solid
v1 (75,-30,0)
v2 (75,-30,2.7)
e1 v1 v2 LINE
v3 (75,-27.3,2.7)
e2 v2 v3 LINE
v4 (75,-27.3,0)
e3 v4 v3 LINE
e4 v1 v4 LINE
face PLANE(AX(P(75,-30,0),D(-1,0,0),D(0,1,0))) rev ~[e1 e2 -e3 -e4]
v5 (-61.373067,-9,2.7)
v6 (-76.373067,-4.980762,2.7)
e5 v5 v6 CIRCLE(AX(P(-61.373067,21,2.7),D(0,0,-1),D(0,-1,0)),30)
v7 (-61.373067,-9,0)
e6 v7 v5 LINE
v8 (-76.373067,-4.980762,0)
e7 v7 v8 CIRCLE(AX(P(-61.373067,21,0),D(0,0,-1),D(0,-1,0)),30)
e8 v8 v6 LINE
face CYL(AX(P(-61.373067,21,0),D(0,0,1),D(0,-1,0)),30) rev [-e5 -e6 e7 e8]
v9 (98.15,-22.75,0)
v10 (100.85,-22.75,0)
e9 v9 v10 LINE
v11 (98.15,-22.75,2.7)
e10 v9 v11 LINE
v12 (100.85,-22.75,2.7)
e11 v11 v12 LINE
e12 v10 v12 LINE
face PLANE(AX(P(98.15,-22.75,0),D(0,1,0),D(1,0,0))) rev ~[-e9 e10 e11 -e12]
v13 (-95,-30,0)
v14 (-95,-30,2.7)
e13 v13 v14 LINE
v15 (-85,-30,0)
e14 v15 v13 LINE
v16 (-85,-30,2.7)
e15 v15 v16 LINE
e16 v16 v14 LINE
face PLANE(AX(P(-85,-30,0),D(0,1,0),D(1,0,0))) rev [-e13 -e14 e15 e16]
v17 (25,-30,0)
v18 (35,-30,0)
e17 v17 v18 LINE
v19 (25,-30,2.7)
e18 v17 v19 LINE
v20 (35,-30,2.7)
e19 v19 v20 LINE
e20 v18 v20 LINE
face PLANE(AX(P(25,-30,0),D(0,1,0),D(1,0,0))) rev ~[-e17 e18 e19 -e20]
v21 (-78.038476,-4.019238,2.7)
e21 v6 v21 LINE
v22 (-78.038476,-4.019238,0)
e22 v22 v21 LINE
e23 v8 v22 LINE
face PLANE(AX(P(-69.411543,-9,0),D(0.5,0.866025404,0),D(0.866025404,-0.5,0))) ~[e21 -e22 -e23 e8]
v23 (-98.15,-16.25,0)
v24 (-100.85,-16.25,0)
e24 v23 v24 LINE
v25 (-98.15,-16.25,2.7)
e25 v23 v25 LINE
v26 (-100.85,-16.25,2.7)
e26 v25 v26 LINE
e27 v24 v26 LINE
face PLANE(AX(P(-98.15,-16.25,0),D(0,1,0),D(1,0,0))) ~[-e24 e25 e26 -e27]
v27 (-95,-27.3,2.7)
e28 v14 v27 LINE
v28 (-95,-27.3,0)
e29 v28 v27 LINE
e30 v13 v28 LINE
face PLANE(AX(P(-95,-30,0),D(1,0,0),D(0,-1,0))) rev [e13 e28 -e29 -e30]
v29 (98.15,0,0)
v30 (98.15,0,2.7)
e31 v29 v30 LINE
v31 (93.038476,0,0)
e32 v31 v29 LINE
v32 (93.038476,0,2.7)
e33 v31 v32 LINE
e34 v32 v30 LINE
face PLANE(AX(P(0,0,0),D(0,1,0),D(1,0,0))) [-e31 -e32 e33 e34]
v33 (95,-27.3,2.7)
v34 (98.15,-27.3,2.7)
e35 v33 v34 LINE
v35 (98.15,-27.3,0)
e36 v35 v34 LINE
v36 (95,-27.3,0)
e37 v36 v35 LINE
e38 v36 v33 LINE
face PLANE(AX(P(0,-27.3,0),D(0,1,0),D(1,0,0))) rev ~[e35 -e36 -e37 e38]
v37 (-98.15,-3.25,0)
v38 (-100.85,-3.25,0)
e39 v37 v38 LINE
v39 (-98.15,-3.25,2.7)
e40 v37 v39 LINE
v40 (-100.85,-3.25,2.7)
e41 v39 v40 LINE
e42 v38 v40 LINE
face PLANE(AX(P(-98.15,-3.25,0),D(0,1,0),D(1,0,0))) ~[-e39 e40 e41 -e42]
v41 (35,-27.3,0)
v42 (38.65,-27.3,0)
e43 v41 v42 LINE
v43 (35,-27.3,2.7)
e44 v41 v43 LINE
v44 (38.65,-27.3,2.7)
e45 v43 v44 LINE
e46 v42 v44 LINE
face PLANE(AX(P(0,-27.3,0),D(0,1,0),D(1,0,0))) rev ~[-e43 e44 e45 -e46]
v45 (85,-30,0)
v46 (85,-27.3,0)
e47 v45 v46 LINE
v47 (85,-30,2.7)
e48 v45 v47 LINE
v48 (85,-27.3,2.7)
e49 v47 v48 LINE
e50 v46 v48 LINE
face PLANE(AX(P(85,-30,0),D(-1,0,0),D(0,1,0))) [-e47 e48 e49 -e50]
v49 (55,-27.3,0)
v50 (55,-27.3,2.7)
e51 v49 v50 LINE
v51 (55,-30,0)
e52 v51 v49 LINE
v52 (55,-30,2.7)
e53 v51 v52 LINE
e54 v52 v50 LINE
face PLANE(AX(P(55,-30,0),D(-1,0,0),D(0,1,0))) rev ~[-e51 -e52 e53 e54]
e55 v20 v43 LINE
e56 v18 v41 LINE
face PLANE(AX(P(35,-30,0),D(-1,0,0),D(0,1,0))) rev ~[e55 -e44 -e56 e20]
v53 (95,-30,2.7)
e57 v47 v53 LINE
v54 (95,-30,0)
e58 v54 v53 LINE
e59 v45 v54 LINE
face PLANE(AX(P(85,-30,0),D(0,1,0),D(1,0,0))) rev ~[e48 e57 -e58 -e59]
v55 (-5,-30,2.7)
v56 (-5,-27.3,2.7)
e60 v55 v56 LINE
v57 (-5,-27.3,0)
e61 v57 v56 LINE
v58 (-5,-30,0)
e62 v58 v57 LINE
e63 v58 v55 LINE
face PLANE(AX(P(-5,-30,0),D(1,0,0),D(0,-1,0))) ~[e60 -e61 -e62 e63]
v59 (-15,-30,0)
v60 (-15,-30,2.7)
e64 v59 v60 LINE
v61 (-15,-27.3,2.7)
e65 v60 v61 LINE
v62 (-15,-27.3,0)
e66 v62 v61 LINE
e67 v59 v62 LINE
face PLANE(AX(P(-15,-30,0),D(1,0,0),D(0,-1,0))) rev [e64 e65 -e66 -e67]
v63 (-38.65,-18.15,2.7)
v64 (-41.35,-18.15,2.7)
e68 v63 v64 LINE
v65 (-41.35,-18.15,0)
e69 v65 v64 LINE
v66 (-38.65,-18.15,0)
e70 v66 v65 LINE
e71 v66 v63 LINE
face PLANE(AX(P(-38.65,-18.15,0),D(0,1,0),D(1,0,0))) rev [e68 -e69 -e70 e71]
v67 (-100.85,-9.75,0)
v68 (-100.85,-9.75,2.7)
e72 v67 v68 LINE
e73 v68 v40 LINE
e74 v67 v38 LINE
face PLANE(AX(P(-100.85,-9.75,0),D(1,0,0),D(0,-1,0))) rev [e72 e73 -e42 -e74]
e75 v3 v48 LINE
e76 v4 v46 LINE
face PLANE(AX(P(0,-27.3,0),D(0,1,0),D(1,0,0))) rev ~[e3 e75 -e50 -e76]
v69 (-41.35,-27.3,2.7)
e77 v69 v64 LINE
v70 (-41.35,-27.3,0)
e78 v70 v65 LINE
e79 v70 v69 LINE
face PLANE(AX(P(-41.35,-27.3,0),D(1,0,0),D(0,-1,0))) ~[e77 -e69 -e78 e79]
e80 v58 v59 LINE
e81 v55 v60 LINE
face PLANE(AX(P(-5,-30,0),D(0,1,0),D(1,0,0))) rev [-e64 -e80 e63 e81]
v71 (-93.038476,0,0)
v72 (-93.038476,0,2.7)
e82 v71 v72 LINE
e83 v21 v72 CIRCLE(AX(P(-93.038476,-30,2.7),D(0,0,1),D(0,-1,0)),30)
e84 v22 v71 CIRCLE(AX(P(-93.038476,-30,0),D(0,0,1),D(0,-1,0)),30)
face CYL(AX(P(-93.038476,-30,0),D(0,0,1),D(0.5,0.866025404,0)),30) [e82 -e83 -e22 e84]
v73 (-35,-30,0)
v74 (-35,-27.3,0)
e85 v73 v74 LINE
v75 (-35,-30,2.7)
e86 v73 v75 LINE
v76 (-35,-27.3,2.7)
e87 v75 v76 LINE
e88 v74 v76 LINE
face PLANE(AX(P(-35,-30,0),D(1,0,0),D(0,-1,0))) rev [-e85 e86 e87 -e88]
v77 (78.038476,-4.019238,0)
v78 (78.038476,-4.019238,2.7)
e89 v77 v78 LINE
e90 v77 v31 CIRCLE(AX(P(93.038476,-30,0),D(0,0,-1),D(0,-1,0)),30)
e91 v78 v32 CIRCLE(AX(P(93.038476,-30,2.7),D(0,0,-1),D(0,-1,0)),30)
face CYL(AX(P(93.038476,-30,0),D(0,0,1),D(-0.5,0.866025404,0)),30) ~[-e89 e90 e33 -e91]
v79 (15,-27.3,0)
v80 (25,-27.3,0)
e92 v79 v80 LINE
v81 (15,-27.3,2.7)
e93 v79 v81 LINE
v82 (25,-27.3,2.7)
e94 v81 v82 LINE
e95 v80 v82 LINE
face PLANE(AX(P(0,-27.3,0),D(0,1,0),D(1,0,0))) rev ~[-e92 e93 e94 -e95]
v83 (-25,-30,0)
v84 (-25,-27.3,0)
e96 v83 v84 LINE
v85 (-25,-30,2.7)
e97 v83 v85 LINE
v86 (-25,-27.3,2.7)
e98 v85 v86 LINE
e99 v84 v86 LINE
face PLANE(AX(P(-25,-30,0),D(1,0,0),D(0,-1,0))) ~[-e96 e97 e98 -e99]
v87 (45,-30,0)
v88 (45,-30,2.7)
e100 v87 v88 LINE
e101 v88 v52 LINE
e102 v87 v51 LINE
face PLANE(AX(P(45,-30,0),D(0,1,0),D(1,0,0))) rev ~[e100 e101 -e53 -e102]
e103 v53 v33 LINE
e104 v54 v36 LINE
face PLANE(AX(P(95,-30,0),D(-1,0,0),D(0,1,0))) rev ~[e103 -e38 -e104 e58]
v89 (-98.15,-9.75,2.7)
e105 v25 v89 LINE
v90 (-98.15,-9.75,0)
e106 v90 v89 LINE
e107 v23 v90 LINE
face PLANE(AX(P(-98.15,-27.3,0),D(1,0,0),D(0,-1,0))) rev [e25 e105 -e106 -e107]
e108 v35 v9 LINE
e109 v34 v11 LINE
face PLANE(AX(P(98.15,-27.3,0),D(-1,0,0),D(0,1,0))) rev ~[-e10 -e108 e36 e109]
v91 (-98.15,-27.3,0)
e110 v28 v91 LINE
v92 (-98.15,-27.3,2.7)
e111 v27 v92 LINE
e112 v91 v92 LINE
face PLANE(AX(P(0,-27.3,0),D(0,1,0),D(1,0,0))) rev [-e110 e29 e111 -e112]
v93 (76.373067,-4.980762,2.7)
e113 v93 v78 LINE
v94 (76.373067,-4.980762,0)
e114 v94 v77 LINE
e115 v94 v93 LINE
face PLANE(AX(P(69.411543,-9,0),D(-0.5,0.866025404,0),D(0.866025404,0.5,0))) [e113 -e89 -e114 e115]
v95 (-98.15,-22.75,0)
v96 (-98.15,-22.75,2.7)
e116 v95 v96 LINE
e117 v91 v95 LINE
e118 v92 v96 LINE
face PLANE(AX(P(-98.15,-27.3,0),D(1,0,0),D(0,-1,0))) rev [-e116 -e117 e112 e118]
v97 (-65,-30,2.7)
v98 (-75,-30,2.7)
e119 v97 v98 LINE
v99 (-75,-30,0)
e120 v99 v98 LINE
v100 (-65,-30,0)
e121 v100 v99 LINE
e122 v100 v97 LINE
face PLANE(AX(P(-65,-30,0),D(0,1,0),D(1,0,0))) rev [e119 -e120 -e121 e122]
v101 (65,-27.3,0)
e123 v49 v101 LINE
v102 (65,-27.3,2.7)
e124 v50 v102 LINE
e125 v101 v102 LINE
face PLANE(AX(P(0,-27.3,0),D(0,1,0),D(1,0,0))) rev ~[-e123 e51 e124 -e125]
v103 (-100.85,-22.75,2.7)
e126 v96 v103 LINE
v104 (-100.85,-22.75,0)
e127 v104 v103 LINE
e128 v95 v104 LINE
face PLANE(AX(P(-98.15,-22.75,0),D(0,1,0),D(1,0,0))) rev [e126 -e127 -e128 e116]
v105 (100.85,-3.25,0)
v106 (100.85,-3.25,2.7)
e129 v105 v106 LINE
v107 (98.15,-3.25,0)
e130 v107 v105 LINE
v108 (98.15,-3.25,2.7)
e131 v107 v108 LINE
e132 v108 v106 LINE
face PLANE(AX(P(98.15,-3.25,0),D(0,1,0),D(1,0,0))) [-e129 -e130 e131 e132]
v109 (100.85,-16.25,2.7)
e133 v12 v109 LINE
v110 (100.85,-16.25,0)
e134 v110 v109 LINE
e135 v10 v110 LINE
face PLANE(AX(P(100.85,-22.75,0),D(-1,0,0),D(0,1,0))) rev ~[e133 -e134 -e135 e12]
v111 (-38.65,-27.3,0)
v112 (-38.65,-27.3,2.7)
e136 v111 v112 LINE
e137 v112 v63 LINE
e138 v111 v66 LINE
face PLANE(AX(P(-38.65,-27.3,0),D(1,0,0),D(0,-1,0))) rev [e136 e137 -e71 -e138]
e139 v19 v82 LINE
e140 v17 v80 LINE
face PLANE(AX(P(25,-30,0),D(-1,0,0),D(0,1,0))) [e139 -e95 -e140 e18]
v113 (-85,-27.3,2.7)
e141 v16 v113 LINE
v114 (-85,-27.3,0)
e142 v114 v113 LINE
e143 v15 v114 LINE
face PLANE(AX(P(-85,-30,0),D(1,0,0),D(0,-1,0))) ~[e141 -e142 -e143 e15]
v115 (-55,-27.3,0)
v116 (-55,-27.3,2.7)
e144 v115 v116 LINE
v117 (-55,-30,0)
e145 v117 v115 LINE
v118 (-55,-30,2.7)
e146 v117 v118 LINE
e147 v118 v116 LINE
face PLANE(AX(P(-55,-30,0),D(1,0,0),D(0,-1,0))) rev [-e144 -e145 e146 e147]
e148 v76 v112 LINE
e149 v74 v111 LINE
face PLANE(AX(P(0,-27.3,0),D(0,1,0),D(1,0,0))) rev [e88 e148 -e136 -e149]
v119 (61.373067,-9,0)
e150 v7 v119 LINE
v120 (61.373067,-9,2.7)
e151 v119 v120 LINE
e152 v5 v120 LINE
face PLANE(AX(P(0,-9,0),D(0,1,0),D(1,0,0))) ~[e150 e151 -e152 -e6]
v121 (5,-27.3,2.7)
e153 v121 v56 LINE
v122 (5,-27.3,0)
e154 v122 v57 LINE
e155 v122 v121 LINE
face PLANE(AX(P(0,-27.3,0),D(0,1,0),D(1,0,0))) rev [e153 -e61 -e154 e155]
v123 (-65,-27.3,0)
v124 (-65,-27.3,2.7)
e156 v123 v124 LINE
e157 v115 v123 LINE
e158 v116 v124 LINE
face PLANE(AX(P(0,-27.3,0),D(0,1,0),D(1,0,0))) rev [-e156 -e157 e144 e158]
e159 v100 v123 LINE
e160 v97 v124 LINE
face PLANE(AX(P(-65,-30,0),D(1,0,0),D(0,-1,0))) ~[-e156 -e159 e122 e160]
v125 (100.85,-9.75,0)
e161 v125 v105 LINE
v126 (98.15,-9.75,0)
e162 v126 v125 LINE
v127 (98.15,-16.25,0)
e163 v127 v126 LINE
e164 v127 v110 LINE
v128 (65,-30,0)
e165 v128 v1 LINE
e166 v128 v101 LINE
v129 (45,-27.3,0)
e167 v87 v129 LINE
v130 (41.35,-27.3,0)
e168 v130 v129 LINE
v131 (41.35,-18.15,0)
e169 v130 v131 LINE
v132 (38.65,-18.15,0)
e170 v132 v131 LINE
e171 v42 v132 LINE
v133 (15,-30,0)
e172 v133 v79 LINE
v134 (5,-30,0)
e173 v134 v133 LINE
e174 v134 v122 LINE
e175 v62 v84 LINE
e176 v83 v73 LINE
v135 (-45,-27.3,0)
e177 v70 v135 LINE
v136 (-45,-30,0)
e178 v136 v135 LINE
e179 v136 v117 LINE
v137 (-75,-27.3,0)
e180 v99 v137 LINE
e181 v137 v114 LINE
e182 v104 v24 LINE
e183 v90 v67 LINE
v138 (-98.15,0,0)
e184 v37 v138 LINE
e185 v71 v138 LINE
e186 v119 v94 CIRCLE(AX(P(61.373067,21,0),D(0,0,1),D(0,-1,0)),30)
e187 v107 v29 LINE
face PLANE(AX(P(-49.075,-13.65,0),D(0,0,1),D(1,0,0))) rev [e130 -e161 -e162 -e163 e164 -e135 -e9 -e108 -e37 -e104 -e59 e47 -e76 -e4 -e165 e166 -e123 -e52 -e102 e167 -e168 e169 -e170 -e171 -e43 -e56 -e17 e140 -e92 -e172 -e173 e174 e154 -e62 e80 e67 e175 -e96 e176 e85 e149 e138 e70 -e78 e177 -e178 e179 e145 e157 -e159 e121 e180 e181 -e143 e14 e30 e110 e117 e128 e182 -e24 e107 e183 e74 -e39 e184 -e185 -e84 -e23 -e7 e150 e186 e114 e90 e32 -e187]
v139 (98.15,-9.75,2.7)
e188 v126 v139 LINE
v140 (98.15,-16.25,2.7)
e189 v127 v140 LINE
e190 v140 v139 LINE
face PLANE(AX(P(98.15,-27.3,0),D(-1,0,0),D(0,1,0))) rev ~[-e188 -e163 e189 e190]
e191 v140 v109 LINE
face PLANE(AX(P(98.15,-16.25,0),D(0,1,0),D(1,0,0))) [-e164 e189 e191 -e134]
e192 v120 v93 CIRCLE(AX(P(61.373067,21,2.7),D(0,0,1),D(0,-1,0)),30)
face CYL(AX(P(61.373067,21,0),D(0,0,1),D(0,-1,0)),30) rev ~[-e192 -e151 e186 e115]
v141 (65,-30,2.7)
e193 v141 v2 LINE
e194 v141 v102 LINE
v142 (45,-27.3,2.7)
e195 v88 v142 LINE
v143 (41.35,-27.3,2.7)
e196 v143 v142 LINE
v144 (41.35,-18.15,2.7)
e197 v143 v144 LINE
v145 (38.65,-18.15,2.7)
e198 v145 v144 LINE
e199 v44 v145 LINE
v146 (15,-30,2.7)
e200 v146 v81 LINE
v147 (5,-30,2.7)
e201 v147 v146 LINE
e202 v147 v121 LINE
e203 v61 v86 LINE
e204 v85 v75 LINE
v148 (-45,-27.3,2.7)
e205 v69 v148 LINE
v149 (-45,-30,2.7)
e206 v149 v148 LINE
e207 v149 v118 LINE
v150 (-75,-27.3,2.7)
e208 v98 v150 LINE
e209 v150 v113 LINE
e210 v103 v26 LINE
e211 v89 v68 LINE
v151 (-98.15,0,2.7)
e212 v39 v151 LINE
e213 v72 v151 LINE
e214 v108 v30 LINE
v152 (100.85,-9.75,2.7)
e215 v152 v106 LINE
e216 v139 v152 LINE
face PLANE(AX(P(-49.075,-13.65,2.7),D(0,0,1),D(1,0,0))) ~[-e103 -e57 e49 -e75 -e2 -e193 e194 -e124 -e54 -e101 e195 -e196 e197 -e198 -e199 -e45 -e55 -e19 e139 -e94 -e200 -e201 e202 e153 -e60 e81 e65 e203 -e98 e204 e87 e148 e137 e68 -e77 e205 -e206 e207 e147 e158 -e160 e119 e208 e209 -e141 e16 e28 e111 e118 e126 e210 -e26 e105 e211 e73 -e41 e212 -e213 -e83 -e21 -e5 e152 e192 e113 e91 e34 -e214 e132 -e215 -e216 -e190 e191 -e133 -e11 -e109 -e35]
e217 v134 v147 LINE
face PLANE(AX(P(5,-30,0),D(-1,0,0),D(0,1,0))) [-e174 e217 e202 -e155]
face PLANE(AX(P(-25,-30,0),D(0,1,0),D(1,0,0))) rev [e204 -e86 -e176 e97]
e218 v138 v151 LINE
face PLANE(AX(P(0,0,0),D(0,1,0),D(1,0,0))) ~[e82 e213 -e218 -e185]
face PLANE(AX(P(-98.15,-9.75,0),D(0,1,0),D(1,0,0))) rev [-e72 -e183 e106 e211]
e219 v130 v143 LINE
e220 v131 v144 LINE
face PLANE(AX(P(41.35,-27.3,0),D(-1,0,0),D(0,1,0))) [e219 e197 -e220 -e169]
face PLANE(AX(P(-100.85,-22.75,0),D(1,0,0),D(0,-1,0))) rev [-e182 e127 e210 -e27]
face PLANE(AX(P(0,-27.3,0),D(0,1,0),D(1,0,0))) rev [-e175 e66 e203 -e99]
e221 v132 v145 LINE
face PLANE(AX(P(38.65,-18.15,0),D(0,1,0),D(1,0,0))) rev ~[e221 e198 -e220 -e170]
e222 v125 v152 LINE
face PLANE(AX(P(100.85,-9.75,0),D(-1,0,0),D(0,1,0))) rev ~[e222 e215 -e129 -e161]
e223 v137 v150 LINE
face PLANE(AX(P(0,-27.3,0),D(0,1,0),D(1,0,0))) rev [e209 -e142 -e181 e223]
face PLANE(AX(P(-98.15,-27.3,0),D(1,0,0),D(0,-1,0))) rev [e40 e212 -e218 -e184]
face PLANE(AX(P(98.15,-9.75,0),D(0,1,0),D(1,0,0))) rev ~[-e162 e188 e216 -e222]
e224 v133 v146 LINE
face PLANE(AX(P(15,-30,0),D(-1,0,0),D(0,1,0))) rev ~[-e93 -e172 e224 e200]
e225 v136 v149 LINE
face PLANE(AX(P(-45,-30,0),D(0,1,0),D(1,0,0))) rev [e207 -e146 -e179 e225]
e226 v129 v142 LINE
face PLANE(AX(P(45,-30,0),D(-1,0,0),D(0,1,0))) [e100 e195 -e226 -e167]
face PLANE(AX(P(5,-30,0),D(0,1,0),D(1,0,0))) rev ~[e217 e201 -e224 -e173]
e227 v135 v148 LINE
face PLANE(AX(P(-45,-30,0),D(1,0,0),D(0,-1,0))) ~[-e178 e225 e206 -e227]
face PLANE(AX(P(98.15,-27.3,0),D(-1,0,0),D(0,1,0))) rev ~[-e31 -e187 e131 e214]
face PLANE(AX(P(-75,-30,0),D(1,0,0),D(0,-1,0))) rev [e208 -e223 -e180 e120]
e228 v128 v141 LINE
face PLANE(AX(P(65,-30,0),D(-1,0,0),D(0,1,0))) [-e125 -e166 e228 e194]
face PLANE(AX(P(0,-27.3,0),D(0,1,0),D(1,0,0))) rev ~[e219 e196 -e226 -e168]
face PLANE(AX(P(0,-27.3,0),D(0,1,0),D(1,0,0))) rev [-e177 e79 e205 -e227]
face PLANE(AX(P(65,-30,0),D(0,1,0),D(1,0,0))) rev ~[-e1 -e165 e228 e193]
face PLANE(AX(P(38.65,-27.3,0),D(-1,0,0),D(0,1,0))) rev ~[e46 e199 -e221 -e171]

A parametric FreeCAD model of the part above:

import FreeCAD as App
import Part
import Sketcher
Q = App.Units.Quantity


def edges_at(feature, points):
    """Names of the edges that pass closest to the given points."""
    edges = feature.Shape.Edges
    near = lambda p: min(range(len(edges)), key=lambda i: edges[i].distToShape(Part.Vertex(*p))[0])
    return sorted({f"Edge{near(p) + 1}" for p in points})


def add_polygon(sketch, points):
    """Adds a closed chain of lines whose ends are joined by coincident constraints."""
    first, n = sketch.GeometryCount, len(points)
    for a, b in zip(points, points[1:] + points[:1]):
        sketch.addGeometry(Part.LineSegment(App.Vector(*a, 0), App.Vector(*b, 0)), False)
    for i in range(n):
        sketch.addConstraint(Sketcher.Constraint("Coincident", first + i, 2, first + (i + 1) % n, 1))

doc = App.newDocument("Part")
body = doc.addObject("PartDesign::Body", "Body")

# Sketch on XY plane
sketch1 = doc.addObject("Sketcher::SketchObject", "Sketch")
body.addObject(sketch1)
sketch1.AttachmentSupport = (doc.XY_Plane, [""])
sketch1.MapMode = "FlatFace"
add_polygon(sketch1, [(0, 0), (0, -27), (98, -27), (98, 0)])  # lines 0-3
sketch1.addConstraint([
    Sketcher.Constraint("Vertical", 0),
    Sketcher.Constraint("Horizontal", 1),
    Sketcher.Constraint("Vertical", 2),
    Sketcher.Constraint("Horizontal", 3),
    Sketcher.Constraint("Coincident", 3, 2, -1, 1),
    Sketcher.Constraint("DistanceY", 0, 2, 0, 1, Q("27.3 mm")),
    Sketcher.Constraint("DistanceX", 1, 1, 1, 2, Q("98.15 mm")),
])
pad1 = doc.addObject("PartDesign::Pad", "Pad")
body.addObject(pad1)
pad1.Profile = sketch1
pad1.Length = 2.7

# Sketch on XY plane
sketch2 = doc.addObject("Sketcher::SketchObject", "Sketch001")
body.addObject(sketch2)
sketch2.AttachmentSupport = (doc.XY_Plane, [""])
sketch2.MapMode = "FlatFace"
add_polygon(sketch2, [(5, -27.3), (5, -30), (15, -30), (15, -27.3)])  # lines 0-3
sketch2.addConstraint([
    Sketcher.Constraint("Vertical", 0),
    Sketcher.Constraint("Horizontal", 1),
    Sketcher.Constraint("Vertical", 2),
    Sketcher.Constraint("Horizontal", 3),
    Sketcher.Constraint("DistanceX", 1, 1, 1, 2, Q("10 mm")),
    Sketcher.Constraint("DistanceY", 0, 2, 0, 1, Q("2.7 mm")),
    Sketcher.Constraint("DistanceX", -1, 1, 0, 2, Q("5 mm")),
    Sketcher.Constraint("DistanceY", 0, 2, -1, 1, Q("30 mm")),
])
pad2 = doc.addObject("PartDesign::Pad", "Pad001")
body.addObject(pad2)
pad2.Profile = sketch2
pad2.Length = 2.7
doc.recompute()

linearpattern = doc.addObject("PartDesign::LinearPattern", "LinearPattern")
body.addObject(linearpattern)
linearpattern.Originals = [pad2]
linearpattern.Direction = (doc.X_Axis, [""])
linearpattern.Mode = "offset"
linearpattern.Offset = 20
linearpattern.Occurrences = 5
body.Tip = linearpattern

# Sketch on XY plane
sketch3 = doc.addObject("Sketcher::SketchObject", "Sketch002")
body.addObject(sketch3)
sketch3.AttachmentSupport = (doc.XY_Plane, [""])
sketch3.MapMode = "FlatFace"
add_polygon(sketch3, [(98.2, -3.2), (98.2, -9.8), (100.8, -9.8), (100.8, -3.2)])  # lines 0-3
sketch3.addConstraint([
    Sketcher.Constraint("Vertical", 0),
    Sketcher.Constraint("Horizontal", 1),
    Sketcher.Constraint("Vertical", 2),
    Sketcher.Constraint("Horizontal", 3),
    Sketcher.Constraint("DistanceX", 1, 1, 1, 2, Q("2.7 mm")),
    Sketcher.Constraint("DistanceY", 0, 2, 0, 1, Q("6.5 mm")),
    Sketcher.Constraint("DistanceX", -1, 1, 0, 2, Q("98.15 mm")),
    Sketcher.Constraint("DistanceY", 0, 2, -1, 1, Q("9.75 mm")),
])
pad3 = doc.addObject("PartDesign::Pad", "Pad002")
body.addObject(pad3)
pad3.Profile = sketch3
pad3.Length = 2.7
doc.recompute()

linearpattern2 = doc.addObject("PartDesign::LinearPattern", "LinearPattern001")
body.addObject(linearpattern2)
linearpattern2.Originals = [pad3]
linearpattern2.Direction = (doc.Y_Axis, [""])
linearpattern2.Mode = "offset"
linearpattern2.Offset = 13
linearpattern2.Occurrences = 2
linearpattern2.Reversed = True
body.Tip = linearpattern2

# Sketch on XY plane
sketch4 = doc.addObject("Sketcher::SketchObject", "Sketch003")
body.addObject(sketch4)
sketch4.AttachmentSupport = (doc.XY_Plane, [""])
sketch4.MapMode = "FlatFace"
add_polygon(sketch4, [(0, -9), (69, -9), (85, 0), (0, 0)])  # lines 0-3
sketch4.addConstraint([
    Sketcher.Constraint("Horizontal", 0),
    Sketcher.Constraint("Horizontal", 2),
    Sketcher.Constraint("Vertical", 3),
    Sketcher.Constraint("Coincident", 2, 2, -1, 1),
    Sketcher.Constraint("DistanceX", 2, 2, 2, 1, Q("85 mm")),
    Sketcher.Constraint("DistanceY", 3, 2, 3, 1, Q("9 mm")),
    Sketcher.Constraint("Angle", 1, Q("30 deg")),
])
pocket1 = doc.addObject("PartDesign::Pocket", "Pocket")
body.addObject(pocket1)
pocket1.Profile = sketch4
pocket1.Length = 2.7
pocket1.Reversed = True
doc.recompute()

fillet = doc.addObject("PartDesign::Fillet", "Fillet")
body.addObject(fillet)
fillet.Base = (pocket1, edges_at(pocket1, [(69.412, -9, 1.35), (85, 0, 1.35)]))
fillet.Radius = 30
body2 = doc.addObject("PartDesign::Body", "Body001")
doc.recompute()

body2.BaseFeature = body
doc.recompute()

mirroring = doc.addObject("Part::Mirroring", "Mirroring")
mirroring.Source = body
mirroring.Base = App.Vector(0, 0, 0)
mirroring.Normal = App.Vector(1, 0, 0)
body3 = doc.addObject("PartDesign::Body", "Body002")
body3.BaseFeature = mirroring
boolean = doc.addObject("PartDesign::Boolean", "Boolean")
body2.addObject(boolean)
boolean.Type = "Fuse"
boolean.addObjects([body3])
doc.recompute()

# Sketch on XY plane
sketch5 = doc.addObject("Sketcher::SketchObject", "Sketch004")
body2.addObject(sketch5)
sketch5.AttachmentSupport = (doc.getObject("XY_Plane001"), [""])
sketch5.MapMode = "FlatFace"
add_polygon(sketch5, [(38.6, -18.1), (38.6, -27.3), (41.4, -27.3), (41.4, -18.1)])  # lines 0-3
sketch5.addConstraint([
    Sketcher.Constraint("Vertical", 0),
    Sketcher.Constraint("Horizontal", 1),
    Sketcher.Constraint("Vertical", 2),
    Sketcher.Constraint("Horizontal", 3),
    Sketcher.Constraint("DistanceX", 1, 1, 1, 2, Q("2.7 mm")),
    Sketcher.Constraint("DistanceY", 0, 2, 0, 1, Q("9.15 mm")),
    Sketcher.Constraint("DistanceY", 0, 2, -1, 1, Q("27.3 mm")),
    Sketcher.Constraint("DistanceX", -1, 1, 0, 2, Q("38.65 mm")),
])
pocket2 = doc.addObject("PartDesign::Pocket", "Pocket001")
body2.addObject(pocket2)
pocket2.Profile = sketch5
pocket2.Length = 2.7
pocket2.Reversed = True
doc.recompute()

mirrored = doc.addObject("PartDesign::Mirrored", "Mirrored")
body2.addObject(mirrored)
mirrored.Originals = [pocket2]
mirrored.MirrorPlane = (doc.getObject("YZ_Plane001"), [""])
body2.Tip = mirrored
mirroring.Visibility = False

doc.recompute()
